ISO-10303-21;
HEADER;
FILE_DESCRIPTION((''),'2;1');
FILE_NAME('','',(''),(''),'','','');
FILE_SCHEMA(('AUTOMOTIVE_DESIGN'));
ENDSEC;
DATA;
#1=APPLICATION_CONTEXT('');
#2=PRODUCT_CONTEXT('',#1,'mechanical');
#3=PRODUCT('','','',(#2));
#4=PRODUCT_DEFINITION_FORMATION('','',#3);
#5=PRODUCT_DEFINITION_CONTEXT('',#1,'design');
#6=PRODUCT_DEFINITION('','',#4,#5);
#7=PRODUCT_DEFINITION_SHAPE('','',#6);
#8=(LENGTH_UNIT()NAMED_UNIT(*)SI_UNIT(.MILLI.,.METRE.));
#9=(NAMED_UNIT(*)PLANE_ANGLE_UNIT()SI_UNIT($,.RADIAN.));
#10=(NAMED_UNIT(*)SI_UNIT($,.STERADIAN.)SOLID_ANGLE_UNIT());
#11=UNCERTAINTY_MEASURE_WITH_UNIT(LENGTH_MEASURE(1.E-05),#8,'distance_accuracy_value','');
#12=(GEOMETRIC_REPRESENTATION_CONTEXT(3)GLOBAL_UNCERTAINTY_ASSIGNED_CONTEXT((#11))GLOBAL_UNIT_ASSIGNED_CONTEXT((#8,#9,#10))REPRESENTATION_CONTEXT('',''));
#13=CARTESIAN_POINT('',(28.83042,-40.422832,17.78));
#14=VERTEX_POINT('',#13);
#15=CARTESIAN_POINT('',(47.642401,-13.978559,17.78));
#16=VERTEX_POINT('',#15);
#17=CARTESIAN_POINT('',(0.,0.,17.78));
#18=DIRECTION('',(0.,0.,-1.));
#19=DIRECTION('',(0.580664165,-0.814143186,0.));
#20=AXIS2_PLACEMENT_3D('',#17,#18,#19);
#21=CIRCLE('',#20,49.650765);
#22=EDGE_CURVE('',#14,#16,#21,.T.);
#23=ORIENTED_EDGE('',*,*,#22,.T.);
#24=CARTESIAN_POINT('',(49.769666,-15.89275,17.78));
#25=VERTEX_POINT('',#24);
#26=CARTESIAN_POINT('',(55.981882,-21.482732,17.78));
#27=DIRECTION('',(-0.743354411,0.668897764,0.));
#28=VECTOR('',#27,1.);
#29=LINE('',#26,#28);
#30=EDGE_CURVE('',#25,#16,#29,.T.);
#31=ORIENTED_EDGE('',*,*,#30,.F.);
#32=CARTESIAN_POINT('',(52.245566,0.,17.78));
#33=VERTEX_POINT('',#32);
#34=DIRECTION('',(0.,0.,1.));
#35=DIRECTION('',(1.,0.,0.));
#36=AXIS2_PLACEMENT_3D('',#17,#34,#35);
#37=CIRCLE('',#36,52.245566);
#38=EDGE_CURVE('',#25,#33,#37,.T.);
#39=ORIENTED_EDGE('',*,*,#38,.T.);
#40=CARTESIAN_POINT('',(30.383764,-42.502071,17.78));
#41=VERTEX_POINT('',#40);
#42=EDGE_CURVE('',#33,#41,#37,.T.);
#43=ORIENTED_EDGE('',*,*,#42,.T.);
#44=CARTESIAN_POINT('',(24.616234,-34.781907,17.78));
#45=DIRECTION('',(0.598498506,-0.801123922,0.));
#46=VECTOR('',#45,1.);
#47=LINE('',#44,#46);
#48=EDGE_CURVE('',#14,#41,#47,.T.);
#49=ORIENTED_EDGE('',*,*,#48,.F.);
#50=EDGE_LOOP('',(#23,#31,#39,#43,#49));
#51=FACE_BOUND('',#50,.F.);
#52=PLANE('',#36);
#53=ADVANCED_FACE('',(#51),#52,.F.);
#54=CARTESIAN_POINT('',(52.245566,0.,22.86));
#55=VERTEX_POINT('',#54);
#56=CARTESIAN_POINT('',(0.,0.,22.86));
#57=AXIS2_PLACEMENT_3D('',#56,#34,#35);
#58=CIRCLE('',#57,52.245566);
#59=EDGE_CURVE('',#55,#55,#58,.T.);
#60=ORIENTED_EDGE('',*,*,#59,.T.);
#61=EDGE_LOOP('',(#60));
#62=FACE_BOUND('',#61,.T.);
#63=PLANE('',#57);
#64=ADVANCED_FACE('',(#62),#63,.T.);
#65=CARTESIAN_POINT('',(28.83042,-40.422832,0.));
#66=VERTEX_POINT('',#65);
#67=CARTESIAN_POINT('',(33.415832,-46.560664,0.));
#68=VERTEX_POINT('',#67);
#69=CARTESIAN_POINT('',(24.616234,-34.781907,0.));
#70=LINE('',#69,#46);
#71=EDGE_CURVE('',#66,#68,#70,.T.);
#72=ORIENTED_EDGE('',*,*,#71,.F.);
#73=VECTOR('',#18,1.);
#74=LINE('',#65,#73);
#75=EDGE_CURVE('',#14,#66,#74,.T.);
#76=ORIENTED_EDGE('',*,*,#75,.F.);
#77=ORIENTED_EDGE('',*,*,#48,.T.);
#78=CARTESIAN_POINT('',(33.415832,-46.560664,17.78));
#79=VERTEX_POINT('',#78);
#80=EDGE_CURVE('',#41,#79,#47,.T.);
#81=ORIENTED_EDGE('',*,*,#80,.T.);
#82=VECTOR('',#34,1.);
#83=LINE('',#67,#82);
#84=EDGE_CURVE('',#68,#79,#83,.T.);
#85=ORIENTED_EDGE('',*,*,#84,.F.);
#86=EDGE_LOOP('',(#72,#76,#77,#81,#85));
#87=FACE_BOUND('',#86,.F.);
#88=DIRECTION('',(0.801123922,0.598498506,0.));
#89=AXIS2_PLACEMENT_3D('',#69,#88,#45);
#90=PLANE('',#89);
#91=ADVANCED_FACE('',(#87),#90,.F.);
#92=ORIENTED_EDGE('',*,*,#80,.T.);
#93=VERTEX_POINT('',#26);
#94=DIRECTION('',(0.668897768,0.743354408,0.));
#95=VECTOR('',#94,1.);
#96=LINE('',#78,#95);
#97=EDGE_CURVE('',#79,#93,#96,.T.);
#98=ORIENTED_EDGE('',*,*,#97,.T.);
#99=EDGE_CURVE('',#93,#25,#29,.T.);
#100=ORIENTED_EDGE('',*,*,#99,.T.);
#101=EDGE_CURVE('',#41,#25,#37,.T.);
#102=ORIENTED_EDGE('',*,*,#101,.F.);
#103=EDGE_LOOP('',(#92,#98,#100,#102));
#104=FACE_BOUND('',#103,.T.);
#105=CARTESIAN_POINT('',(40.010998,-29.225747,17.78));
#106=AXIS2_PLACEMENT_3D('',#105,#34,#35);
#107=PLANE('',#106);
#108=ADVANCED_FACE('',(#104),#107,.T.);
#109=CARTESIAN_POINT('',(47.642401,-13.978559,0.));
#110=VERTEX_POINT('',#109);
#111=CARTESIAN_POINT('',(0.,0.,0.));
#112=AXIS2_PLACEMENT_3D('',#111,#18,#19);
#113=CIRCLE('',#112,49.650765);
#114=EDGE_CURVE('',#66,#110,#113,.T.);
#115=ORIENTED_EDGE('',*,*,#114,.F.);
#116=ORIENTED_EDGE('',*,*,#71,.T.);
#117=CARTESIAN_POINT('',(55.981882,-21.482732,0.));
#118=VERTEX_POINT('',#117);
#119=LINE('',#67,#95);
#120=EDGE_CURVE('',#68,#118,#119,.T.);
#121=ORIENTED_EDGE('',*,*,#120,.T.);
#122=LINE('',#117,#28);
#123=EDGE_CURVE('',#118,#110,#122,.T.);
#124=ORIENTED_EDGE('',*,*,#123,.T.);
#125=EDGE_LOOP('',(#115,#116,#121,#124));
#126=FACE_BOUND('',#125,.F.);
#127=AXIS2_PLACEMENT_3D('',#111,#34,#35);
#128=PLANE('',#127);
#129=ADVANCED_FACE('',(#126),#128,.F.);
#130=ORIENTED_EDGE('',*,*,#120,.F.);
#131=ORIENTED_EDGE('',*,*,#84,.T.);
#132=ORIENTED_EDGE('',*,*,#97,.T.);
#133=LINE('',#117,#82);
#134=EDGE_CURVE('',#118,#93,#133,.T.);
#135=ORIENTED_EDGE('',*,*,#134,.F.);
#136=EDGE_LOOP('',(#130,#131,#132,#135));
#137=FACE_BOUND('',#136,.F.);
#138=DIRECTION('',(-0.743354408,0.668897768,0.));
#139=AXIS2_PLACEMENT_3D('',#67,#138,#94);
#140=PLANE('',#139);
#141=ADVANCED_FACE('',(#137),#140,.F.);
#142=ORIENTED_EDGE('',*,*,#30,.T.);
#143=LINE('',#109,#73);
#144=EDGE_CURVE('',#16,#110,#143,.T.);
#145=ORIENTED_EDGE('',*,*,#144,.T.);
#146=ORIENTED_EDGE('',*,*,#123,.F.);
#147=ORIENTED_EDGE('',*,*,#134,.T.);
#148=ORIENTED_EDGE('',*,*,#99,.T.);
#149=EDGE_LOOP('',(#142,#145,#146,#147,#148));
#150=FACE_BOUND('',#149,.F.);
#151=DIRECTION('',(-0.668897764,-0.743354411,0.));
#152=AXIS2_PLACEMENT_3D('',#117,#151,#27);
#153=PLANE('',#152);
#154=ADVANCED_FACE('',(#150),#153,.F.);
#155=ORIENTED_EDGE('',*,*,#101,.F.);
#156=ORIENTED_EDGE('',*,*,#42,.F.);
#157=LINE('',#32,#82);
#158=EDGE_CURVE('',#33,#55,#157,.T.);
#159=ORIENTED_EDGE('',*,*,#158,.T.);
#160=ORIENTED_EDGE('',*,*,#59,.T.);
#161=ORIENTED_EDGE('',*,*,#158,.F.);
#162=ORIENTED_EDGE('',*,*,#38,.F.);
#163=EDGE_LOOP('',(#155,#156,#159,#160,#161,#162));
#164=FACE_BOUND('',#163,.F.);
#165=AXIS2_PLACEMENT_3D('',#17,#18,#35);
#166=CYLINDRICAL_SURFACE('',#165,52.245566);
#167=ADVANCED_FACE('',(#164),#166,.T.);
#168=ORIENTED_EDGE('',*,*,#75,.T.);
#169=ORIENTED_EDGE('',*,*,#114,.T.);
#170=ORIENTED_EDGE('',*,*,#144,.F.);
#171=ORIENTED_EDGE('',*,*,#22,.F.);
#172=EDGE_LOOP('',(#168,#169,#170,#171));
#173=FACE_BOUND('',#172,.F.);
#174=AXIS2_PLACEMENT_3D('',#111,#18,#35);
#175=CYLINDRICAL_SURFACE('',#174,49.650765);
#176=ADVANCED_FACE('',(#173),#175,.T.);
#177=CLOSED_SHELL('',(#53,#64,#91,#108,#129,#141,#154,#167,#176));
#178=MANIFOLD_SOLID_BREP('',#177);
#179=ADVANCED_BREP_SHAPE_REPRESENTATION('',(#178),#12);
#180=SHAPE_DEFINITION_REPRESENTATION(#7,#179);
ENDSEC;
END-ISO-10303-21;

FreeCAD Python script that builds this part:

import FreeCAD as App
import Part
import Sketcher
Q = App.Units.Quantity

doc = App.newDocument("Part")
body = doc.addObject("PartDesign::Body", "Body")

# Sketch on XY plane
sketch1 = body.newObject("Sketcher::SketchObject", "Sketch")
sketch1.AttachmentSupport = (doc.getObject("XY_Plane"), [""])
sketch1.MapMode = "FlatFace"
sketch1.addGeometry(Part.Circle(App.Vector(0, 0, 0), App.Vector(0, 0, 1), 50), False)
sketch1.addConstraint([
    Sketcher.Constraint("Coincident", 0, 3, -1, 1),
    Sketcher.Constraint("Diameter", 0, Q("99.30153 mm")),
])
pad1 = body.newObject("PartDesign::Pad", "Pad")
pad1.Profile = sketch1
pad1.Length = Q("0.7 in")

# Sketch on XY plane
sketch2 = body.newObject("Sketcher::SketchObject", "Sketch001")
sketch2.AttachmentSupport = (doc.getObject("XY_Plane"), [""])
sketch2.MapMode = "FlatFace"
sketch2.AttachmentOffset = App.Placement(App.Vector(0, 0, 0.7 * 25.4), App.Rotation())
sketch2.addGeometry(Part.Circle(App.Vector(0, 0, 0), App.Vector(0, 0, 1), 52), False)
sketch2.addConstraint([
    Sketcher.Constraint("Coincident", 0, 3, -1, 1),
    Sketcher.Constraint("Diameter", 0, Q("104.491132 mm")),
])
pad2 = body.newObject("PartDesign::Pad", "Pad001")
pad2.Profile = sketch2
pad2.Length = Q("0.2 in")

# Sketch on XY plane
sketch3 = body.newObject("Sketcher::SketchObject", "Sketch002")
sketch3.AttachmentSupport = (doc.getObject("XY_Plane"), [""])
sketch3.MapMode = "FlatFace"
sketch3.addGeometry([
    Part.LineSegment(App.Vector(46, -13, 0), App.Vector(25, -35, 0)),
    Part.LineSegment(App.Vector(25, -35, 0), App.Vector(33, -47, 0)),
    Part.LineSegment(App.Vector(33, -47, 0), App.Vector(56, -21, 0)),
    Part.LineSegment(App.Vector(56, -21, 0), App.Vector(46, -13, 0)),
], False)
sketch3.addConstraint([
    Sketcher.Constraint("Coincident", 0, 2, 1, 1),
    Sketcher.Constraint("Coincident", 1, 2, 2, 1),
    Sketcher.Constraint("Coincident", 2, 2, 3, 1),
    Sketcher.Constraint("Coincident", 3, 2, 0, 1),
    Sketcher.Constraint("Perpendicular", 2, 3),
    Sketcher.Constraint("DistanceX", 0, 2, 1, 2, Q("8.799598 mm")),
    Sketcher.Constraint("Distance", 0, Q("30.89134 mm")),
    Sketcher.Constraint("Distance", 1, Q("14.70279 mm")),
    Sketcher.Constraint("Distance", 2, Q("33.736172 mm")),
    Sketcher.Constraint("DistanceY", 2, 2, -1, 1, Q("21.482732 mm")),
    Sketcher.Constraint("DistanceY", 3, 2, -1, 1, Q("12.667159 mm")),
    Sketcher.Constraint("DistanceX", -1, 1, 0, 2, Q("24.616234 mm")),
])
pad3 = body.newObject("PartDesign::Pad", "Pad002")
pad3.Profile = sketch3
pad3.Length = Q("0.7 in")

doc.recompute()
